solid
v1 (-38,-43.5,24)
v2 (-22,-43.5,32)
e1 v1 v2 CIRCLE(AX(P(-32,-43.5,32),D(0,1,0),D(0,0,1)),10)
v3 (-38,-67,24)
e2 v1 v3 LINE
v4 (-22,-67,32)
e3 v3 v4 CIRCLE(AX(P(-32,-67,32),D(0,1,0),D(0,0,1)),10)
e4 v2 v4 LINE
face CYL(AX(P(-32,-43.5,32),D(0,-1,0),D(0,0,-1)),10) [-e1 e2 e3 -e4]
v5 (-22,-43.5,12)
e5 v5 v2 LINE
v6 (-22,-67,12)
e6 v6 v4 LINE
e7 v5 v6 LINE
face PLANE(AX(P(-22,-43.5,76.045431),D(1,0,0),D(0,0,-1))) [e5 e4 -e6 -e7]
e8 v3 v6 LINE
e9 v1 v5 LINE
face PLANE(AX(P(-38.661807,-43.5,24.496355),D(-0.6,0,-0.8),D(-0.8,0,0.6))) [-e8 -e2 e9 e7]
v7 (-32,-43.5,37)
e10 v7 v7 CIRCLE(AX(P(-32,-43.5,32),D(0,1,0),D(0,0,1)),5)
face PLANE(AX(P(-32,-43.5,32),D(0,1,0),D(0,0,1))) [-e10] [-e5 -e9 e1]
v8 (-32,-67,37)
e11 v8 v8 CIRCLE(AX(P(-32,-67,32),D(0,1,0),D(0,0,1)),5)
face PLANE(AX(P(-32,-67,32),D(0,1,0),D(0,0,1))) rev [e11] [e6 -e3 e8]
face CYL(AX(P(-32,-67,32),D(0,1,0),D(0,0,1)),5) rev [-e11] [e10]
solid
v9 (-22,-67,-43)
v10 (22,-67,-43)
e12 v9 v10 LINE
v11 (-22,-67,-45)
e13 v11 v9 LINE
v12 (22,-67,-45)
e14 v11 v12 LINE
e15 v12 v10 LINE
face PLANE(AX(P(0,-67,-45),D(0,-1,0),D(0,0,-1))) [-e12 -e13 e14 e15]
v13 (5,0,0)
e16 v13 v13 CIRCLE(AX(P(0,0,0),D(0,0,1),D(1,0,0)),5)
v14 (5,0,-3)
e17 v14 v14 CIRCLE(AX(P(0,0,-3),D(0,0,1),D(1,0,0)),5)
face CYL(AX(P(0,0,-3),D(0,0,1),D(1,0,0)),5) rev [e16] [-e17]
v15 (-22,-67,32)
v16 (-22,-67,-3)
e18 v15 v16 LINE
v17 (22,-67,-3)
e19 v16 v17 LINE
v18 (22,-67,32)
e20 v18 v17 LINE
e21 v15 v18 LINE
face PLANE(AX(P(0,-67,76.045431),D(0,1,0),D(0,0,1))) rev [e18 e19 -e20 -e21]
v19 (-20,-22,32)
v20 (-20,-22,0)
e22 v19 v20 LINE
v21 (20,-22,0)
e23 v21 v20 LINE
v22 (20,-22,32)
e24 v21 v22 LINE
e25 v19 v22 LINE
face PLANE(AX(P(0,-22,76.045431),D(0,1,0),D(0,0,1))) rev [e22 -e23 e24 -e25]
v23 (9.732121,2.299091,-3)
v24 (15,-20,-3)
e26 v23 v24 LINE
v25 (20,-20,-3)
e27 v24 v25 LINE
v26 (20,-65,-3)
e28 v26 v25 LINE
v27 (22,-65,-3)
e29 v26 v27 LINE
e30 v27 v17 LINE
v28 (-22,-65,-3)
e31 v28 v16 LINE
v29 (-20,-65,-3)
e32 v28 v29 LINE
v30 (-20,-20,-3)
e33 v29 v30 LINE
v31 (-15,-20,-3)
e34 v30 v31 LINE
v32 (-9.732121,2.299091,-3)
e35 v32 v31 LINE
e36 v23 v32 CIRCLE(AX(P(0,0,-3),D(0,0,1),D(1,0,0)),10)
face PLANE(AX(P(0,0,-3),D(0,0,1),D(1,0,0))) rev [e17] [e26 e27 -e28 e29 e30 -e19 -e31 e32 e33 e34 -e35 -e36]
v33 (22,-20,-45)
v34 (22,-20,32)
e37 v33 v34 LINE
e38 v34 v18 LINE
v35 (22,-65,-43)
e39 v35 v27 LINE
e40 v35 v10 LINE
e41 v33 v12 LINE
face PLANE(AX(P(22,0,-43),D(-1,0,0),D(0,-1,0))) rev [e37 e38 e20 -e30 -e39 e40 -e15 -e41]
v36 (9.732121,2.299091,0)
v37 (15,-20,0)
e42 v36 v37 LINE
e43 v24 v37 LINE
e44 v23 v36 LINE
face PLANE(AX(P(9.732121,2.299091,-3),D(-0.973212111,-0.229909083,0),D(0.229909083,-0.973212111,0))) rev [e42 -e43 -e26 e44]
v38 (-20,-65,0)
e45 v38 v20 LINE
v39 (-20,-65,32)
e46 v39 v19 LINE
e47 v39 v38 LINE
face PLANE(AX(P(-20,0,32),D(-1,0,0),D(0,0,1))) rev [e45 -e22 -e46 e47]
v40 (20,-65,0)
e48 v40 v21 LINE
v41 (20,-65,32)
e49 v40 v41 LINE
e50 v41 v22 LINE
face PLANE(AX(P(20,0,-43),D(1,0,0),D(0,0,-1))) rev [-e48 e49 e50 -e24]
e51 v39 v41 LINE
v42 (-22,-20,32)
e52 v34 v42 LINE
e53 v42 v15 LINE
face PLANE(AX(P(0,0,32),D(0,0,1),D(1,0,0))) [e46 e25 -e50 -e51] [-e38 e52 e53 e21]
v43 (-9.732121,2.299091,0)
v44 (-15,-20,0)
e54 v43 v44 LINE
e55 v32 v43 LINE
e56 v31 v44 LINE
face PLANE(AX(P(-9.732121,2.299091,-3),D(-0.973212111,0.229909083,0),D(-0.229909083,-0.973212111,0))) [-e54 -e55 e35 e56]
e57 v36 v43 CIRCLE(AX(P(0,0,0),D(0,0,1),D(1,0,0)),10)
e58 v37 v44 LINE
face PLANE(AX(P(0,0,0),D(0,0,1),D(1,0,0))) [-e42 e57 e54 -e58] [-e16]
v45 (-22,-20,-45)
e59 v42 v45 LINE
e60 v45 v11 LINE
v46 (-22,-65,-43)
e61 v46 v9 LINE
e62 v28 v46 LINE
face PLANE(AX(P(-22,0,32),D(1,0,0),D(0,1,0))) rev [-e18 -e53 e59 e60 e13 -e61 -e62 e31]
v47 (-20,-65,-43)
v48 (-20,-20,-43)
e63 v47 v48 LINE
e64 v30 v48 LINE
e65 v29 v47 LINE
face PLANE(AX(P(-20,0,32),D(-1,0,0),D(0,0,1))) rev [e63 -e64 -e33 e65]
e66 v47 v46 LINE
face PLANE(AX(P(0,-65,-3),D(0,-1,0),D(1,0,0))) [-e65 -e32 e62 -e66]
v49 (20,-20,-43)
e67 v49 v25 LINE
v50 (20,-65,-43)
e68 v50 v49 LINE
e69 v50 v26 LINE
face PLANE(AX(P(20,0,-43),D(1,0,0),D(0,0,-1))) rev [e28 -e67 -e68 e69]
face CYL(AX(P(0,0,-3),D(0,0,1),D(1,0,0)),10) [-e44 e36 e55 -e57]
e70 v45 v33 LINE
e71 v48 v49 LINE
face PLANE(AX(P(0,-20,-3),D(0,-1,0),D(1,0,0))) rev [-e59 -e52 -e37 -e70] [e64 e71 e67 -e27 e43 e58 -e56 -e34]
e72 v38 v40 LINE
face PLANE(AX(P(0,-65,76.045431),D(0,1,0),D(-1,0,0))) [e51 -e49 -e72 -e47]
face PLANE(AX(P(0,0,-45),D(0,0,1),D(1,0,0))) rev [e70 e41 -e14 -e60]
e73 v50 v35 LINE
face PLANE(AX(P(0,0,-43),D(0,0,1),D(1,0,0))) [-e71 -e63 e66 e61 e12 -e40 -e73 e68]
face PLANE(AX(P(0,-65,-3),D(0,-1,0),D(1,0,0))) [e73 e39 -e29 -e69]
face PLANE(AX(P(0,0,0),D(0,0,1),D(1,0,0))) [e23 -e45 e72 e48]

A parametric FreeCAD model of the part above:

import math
import FreeCAD as App
import Part
import Sketcher

V = App.Vector
Q = App.Units.Quantity


def add_polygon(sketch, points):
    """Adds a closed chain of lines whose ends are joined by coincident constraints."""
    first, n = sketch.GeometryCount, len(points)
    for a, b in zip(points, points[1:] + points[:1]):
        sketch.addGeometry(Part.LineSegment(App.Vector(*a, 0), App.Vector(*b, 0)), False)
    for i in range(n):
        sketch.addConstraint(Sketcher.Constraint("Coincident", first + i, 2, first + (i + 1) % n, 1))

doc = App.newDocument("Part")
body = doc.addObject("PartDesign::Body", "Body")

# Sketch on XY plane
sketch1 = body.newObject("Sketcher::SketchObject", "Sketch")
sketch1.AttachmentSupport = (doc.getObject("XY_Plane"), [""])
sketch1.MapMode = "FlatFace"
sketch1.addGeometry([
    Part.LineSegment(V(-9.732121, 2.299091, 0), V(-15, -20, 0)),  # 0
    Part.LineSegment(V(-15, -20, 0), V(-20, -20, 0)),  # 1
    Part.LineSegment(V(-20, -20, 0), V(-20, -65, 0)),  # 2
    Part.LineSegment(V(-20, -65, 0), V(20, -65, 0)),  # 3
    Part.LineSegment(V(20, -65, 0), V(20, -20, 0)),  # 4
    Part.LineSegment(V(20, -20, 0), V(15, -20, 0)),  # 5
    Part.LineSegment(V(15, -20, 0), V(9.732121, 2.299091, 0)),  # 6
    Part.ArcOfCircle(Part.Circle(V(0, 0, 0), V(0, 0, 1), 10), math.radians(13.291719), math.radians(166.708281)),  # 7
    Part.Circle(V(0, 0, 0), V(0, 0, 1), 5),  # 8
], False)
sketch1.addConstraint([
    Sketcher.Constraint("Coincident", 0, 2, 1, 1),
    Sketcher.Constraint("Coincident", 1, 2, 2, 1),
    Sketcher.Constraint("Coincident", 2, 2, 3, 1),
    Sketcher.Constraint("Coincident", 3, 2, 4, 1),
    Sketcher.Constraint("Coincident", 4, 2, 5, 1),
    Sketcher.Constraint("Coincident", 5, 2, 6, 1),
    Sketcher.Constraint("Tangent", 6, 2, 7, 1),
    Sketcher.Constraint("Tangent", 7, 2, 0, 1),
    Sketcher.Constraint("Horizontal", 1),
    Sketcher.Constraint("Vertical", 2),
    Sketcher.Constraint("Horizontal", 3),
    Sketcher.Constraint("Vertical", 4),
    Sketcher.Constraint("Horizontal", 5),
    Sketcher.Constraint("Coincident", 7, 3, -1, 1),
    Sketcher.Constraint("Coincident", 8, 3, -1, 1),
    Sketcher.Constraint("Symmetric", 1, 2, 4, 2, -2),
    Sketcher.Constraint("Horizontal", 6, 2, 7, 2),
    Sketcher.Constraint("Diameter", 8, Q("10 mm")),
    Sketcher.Constraint("Radius", 7, Q("10 mm")),
    Sketcher.Constraint("DistanceX", 1, 2, 1, 1, Q("5 mm")),
    Sketcher.Constraint("DistanceX", 3, 1, 3, 2, Q("40 mm")),
    Sketcher.Constraint("DistanceY", 2, 2, 2, 1, Q("45 mm")),
    Sketcher.Constraint("DistanceY", 0, 2, -1, 1, Q("20 mm")),
])
pad1 = body.newObject("PartDesign::Pad", "Pad")
pad1.Profile = sketch1
pad1.Length = 3
pad1.Reversed = True

# Sketch on XY plane
sketch2 = body.newObject("Sketcher::SketchObject", "Sketch001")
sketch2.AttachmentSupport = (doc.getObject("XY_Plane"), [""])
sketch2.MapMode = "FlatFace"
sketch2.AttachmentOffset = App.Placement(V(0, 0, -3), App.Rotation())
add_polygon(sketch2, [(-22, -65), (-20, -65), (-20, -20), (-22, -20)])  # lines 0-3
add_polygon(sketch2, [(20, -65), (22, -65), (22, -20), (20, -20)])  # lines 4-7
sketch2.addConstraint([
    Sketcher.Constraint("Horizontal", 0),
    Sketcher.Constraint("Vertical", 1),
    Sketcher.Constraint("Horizontal", 2),
    Sketcher.Constraint("Vertical", 3),
    Sketcher.Constraint("Horizontal", 4),
    Sketcher.Constraint("Vertical", 5),
    Sketcher.Constraint("Horizontal", 6),
    Sketcher.Constraint("Vertical", 7),
    Sketcher.Constraint("Symmetric", 3, 2, 4, 2, -2),
    Sketcher.Constraint("Symmetric", 1, 2, 6, 2, -2),
    Sketcher.Constraint("DistanceX", 0, 1, 0, 2, Q("2 mm")),
    Sketcher.Constraint("DistanceY", 1, 1, 1, 2, Q("45 mm")),
    Sketcher.Constraint("DistanceX", 0, 2, -1, 1, Q("20 mm")),
    Sketcher.Constraint("DistanceY", 0, 2, -1, 1, Q("65 mm")),
])
pad2 = body.newObject("PartDesign::Pad", "Pad001")
pad2.Profile = sketch2
pad2.Type = "TwoLengths"
pad2.Length = 35
pad2.Length2 = 40

# Sketch on XY plane
sketch3 = body.newObject("Sketcher::SketchObject", "Sketch002")
sketch3.AttachmentSupport = (doc.getObject("XY_Plane"), [""])
sketch3.MapMode = "FlatFace"
sketch3.AttachmentOffset = App.Placement(V(0, 0, -3), App.Rotation())
add_polygon(sketch3, [(22, -67), (22, -65), (-22, -65), (-22, -67)])  # lines 0-3
sketch3.addConstraint([
    Sketcher.Constraint("Vertical", 0),
    Sketcher.Constraint("Horizontal", 1),
    Sketcher.Constraint("Vertical", 2),
    Sketcher.Constraint("Horizontal", 3),
    Sketcher.Constraint("DistanceX", 1, 2, 1, 1, Q("44 mm")),
    Sketcher.Constraint("DistanceY", 0, 1, 0, 2, Q("2 mm")),
    Sketcher.Constraint("DistanceX", -1, 1, 0, 2, Q("22 mm")),
    Sketcher.Constraint("DistanceY", 0, 2, -1, 1, Q("65 mm")),
])
pad3 = body.newObject("PartDesign::Pad", "Pad002")
pad3.Profile = sketch3
pad3.Length = 35

# Sketch on XY plane
sketch4 = body.newObject("Sketcher::SketchObject", "Sketch003")
sketch4.AttachmentSupport = (doc.getObject("XY_Plane"), [""])
sketch4.MapMode = "FlatFace"
sketch4.AttachmentOffset = App.Placement(V(0, 0, -45), App.Rotation())
add_polygon(sketch4, [(-22, -20), (-22, -67), (22, -67), (22, -20)])  # lines 0-3
sketch4.addConstraint([
    Sketcher.Constraint("Vertical", 0),
    Sketcher.Constraint("Horizontal", 1),
    Sketcher.Constraint("Vertical", 2),
    Sketcher.Constraint("Horizontal", 3),
    Sketcher.Constraint("DistanceX", 1, 1, 1, 2, Q("44 mm")),
    Sketcher.Constraint("DistanceY", 0, 2, 0, 1, Q("47 mm")),
    Sketcher.Constraint("DistanceX", 0, 2, -1, 1, Q("22 mm")),
    Sketcher.Constraint("DistanceY", 0, 2, -1, 1, Q("67 mm")),
])
pad4 = body.newObject("PartDesign::Pad", "Pad003")
pad4.Profile = sketch4
pad4.Length = 2

# Sketch on XY plane
sketch5 = body.newObject("Sketcher::SketchObject", "Sketch004")
sketch5.AttachmentSupport = (doc.getObject("XY_Plane"), [""])
sketch5.MapMode = "FlatFace"
sketch5.AttachmentOffset = App.Placement(V(0, 0, -3), App.Rotation())
add_polygon(sketch5, [(22, -22), (22, -20), (-22, -20), (-22, -22)])  # lines 0-3
sketch5.addConstraint([
    Sketcher.Constraint("Vertical", 0),
    Sketcher.Constraint("Horizontal", 1),
    Sketcher.Constraint("Vertical", 2),
    Sketcher.Constraint("Horizontal", 3),
    Sketcher.Constraint("DistanceX", 1, 2, 1, 1, Q("44 mm")),
    Sketcher.Constraint("DistanceY", 0, 1, 0, 2, Q("2 mm")),
    Sketcher.Constraint("DistanceX", -1, 1, 0, 2, Q("22 mm")),
    Sketcher.Constraint("DistanceY", 0, 2, -1, 1, Q("20 mm")),
])
pad5 = body.newObject("PartDesign::Pad", "Pad004")
pad5.Profile = sketch5
pad5.Length = 35
body2 = doc.addObject("PartDesign::Body", "Body001")

# Sketch on XZ plane
sketch6 = body2.newObject("Sketcher::SketchObject", "Sketch005")
sketch6.AttachmentSupport = (doc.getObject("XZ_Plane001"), [""])
sketch6.MapMode = "FlatFace"
sketch6.AttachmentOffset = App.Placement(V(0, 0, 67), App.Rotation())
sketch6.addGeometry([
    Part.LineSegment(V(-22, 12, 0), V(-38, 24, 0)),
    Part.ArcOfCircle(Part.Circle(V(-32, 32, 0), V(0, 0, 1), 10), math.radians(0), math.radians(233.130102)),
    Part.LineSegment(V(-22, 32, 0), V(-22, 12, 0)),
], False)
sketch6.addConstraint([
    Sketcher.Constraint("Tangent", 0, 2, 1, 2),
    Sketcher.Constraint("Tangent", 1, 1, 2, 1),
    Sketcher.Constraint("Coincident", 2, 2, 0, 1),
    Sketcher.Constraint("Vertical", 2),
    Sketcher.Constraint("Radius", 1, Q("10 mm")),
    Sketcher.Constraint("DistanceY", 2, 2, 2, 1, Q("20 mm")),
    Sketcher.Constraint("DistanceX", 1, 3, -1, 1, Q("32 mm")),
    Sketcher.Constraint("DistanceY", -1, 1, 1, 3, Q("32 mm")),
])
pad6 = body2.newObject("PartDesign::Pad", "Pad005")
pad6.Profile = sketch6
pad6.Length = 23.5
pad6.Reversed = True

# Sketch on XZ plane
sketch7 = body2.newObject("Sketcher::SketchObject", "Sketch006")
sketch7.AttachmentSupport = (doc.getObject("XZ_Plane001"), [""])
sketch7.MapMode = "FlatFace"
sketch7.AttachmentOffset = App.Placement(V(0, 0, 43.5), App.Rotation())
sketch7.addGeometry(Part.Circle(V(-32, 32, 0), V(0, 0, 1), 5), False)
sketch7.addConstraint([
    Sketcher.Constraint("Diameter", 0, Q("10 mm")),
    Sketcher.Constraint("DistanceX", 0, 3, -1, 1, Q("32 mm")),
    Sketcher.Constraint("DistanceY", -1, 1, 0, 3, Q("32 mm")),
])
pocket1 = body2.newObject("PartDesign::Pocket", "Pocket")
pocket1.Profile = sketch7
pocket1.Type = "ThroughAll"
pocket1.Reversed = True

doc.recompute()
